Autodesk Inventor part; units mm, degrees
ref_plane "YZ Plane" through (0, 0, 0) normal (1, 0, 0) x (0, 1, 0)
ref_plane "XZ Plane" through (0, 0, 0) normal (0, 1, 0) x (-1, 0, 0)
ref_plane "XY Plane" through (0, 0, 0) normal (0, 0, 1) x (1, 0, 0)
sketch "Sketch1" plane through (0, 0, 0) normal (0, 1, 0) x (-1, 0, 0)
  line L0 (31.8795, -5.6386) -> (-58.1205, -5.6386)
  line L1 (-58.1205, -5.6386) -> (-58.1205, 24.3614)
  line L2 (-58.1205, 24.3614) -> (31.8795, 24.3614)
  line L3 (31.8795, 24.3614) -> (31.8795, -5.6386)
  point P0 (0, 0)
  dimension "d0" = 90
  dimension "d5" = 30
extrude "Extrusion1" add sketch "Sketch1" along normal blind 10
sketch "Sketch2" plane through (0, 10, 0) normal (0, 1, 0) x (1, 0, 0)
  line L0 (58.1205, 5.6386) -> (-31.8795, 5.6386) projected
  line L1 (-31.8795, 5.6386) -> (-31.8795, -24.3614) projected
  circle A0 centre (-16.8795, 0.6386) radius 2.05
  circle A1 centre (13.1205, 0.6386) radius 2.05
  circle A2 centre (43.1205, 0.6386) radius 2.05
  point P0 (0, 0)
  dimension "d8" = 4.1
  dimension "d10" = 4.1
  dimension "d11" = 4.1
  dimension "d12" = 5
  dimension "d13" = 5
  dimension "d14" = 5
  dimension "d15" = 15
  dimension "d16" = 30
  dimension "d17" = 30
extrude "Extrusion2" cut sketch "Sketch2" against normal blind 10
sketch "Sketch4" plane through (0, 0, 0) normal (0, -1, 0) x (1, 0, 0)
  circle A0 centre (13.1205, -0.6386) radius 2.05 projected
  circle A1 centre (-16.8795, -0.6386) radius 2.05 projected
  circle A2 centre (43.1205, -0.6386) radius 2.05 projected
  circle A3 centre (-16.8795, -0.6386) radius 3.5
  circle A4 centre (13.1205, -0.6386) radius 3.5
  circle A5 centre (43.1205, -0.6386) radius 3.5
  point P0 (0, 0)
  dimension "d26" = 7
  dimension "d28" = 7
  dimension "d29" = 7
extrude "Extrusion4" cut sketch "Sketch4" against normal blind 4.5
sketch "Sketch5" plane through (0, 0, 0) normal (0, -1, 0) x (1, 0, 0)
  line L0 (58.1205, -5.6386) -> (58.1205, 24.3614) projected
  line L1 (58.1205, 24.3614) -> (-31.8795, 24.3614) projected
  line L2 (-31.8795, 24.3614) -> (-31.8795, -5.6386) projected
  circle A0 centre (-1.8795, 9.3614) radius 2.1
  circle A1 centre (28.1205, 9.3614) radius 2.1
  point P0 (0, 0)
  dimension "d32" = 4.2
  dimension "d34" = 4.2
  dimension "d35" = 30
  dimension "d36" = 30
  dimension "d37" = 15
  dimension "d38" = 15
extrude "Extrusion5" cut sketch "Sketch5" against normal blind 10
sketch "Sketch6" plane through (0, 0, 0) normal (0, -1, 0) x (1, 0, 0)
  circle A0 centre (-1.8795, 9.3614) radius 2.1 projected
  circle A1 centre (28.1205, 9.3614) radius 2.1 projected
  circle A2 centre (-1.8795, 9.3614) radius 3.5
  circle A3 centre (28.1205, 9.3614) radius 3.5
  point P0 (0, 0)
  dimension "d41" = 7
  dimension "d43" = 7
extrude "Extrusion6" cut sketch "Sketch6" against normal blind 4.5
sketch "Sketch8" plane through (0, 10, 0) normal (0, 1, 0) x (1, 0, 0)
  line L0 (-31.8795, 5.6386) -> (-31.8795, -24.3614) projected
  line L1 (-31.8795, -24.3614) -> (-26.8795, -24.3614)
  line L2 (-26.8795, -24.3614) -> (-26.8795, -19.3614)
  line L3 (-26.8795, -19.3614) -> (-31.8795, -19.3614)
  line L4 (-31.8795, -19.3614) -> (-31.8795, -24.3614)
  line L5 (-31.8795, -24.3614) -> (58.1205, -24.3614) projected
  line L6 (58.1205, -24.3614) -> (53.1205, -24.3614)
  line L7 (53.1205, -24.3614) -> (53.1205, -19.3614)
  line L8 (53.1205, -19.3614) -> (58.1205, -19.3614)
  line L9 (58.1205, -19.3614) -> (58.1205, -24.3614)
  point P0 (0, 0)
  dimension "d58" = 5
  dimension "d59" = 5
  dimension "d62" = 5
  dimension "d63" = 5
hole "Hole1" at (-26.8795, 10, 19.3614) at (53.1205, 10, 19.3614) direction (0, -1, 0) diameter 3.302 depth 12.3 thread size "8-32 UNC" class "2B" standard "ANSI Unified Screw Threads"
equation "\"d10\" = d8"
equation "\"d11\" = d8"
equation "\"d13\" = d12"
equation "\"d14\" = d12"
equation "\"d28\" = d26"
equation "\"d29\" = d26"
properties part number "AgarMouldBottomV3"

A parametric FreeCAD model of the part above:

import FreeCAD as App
import Part
import Sketcher
Q = App.Units.Quantity


def add_polygon(sketch, points):
    """Adds a closed chain of lines whose ends are joined by coincident constraints."""
    first, n = sketch.GeometryCount, len(points)
    for a, b in zip(points, points[1:] + points[:1]):
        sketch.addGeometry(Part.LineSegment(App.Vector(*a, 0), App.Vector(*b, 0)), False)
    for i in range(n):
        sketch.addConstraint(Sketcher.Constraint("Coincident", first + i, 2, first + (i + 1) % n, 1))

doc = App.newDocument("Part")
body = doc.addObject("PartDesign::Body", "Body")

# Sketch on XZ plane
sketch1 = body.newObject("Sketcher::SketchObject", "Sketch")
sketch1.AttachmentSupport = (doc.getObject("XZ_Plane"), [""])
sketch1.MapMode = "FlatFace"
add_polygon(sketch1, [(58, -6), (-32, -6), (-32, 24), (58, 24)])  # lines 0-3
sketch1.addConstraint(Sketcher.Constraint("Horizontal", 0))
sketch1.addConstraint(Sketcher.Constraint("Vertical", 1))
sketch1.addConstraint(Sketcher.Constraint("Horizontal", 2))
sketch1.addConstraint(Sketcher.Constraint("Vertical", 3))
sketch1.addConstraint(Sketcher.Constraint("DistanceX", 0, 2, 0, 1, Q("90 mm")))
sketch1.addConstraint(Sketcher.Constraint("DistanceY", 1, 1, 1, 2, Q("30 mm")))
sketch1.addConstraint(Sketcher.Constraint("DistanceX", 0, 2, -1, 1, Q("31.8795 mm")))
sketch1.addConstraint(Sketcher.Constraint("DistanceY", 0, 2, -1, 1, Q("5.6386 mm")))
pad1 = body.newObject("PartDesign::Pad", "Pad")
pad1.Profile = sketch1
pad1.Length = 10
pad1.Reversed = True

# Sketch on XZ plane
sketch2 = body.newObject("Sketcher::SketchObject", "Sketch001")
sketch2.AttachmentSupport = (doc.getObject("XZ_Plane"), [""])
sketch2.MapMode = "FlatFace"
sketch2.AttachmentOffset = App.Placement(App.Vector(0, 0, -10), App.Rotation())
sketch2.addGeometry(Part.Circle(App.Vector(-16.9, -0.6, 0), App.Vector(0, 0, 1), 2), False)
sketch2.addGeometry(Part.Circle(App.Vector(13.1, -0.6, 0), App.Vector(0, 0, 1), 2), False)
sketch2.addGeometry(Part.Circle(App.Vector(43.1, -0.6, 0), App.Vector(0, 0, 1), 2), False)
sketch2.addConstraint(Sketcher.Constraint("Equal", 0, 1))
sketch2.addConstraint(Sketcher.Constraint("Equal", 1, 2))
sketch2.addConstraint(Sketcher.Constraint("Horizontal", 0, 3, 1, 3))
sketch2.addConstraint(Sketcher.Constraint("Horizontal", 1, 3, 2, 3))
sketch2.addConstraint(Sketcher.Constraint("Diameter", 0, Q("4.1 mm")))
sketch2.addConstraint(Sketcher.Constraint("DistanceX", 0, 3, 1, 3, Q("30 mm")))
sketch2.addConstraint(Sketcher.Constraint("DistanceX", 1, 3, 2, 3, Q("30 mm")))
sketch2.addConstraint(Sketcher.Constraint("DistanceX", 0, 3, -1, 1, Q("16.8795 mm")))
sketch2.addConstraint(Sketcher.Constraint("DistanceY", 0, 3, -1, 1, Q("0.6386 mm")))
pocket1 = body.newObject("PartDesign::Pocket", "Pocket")
pocket1.Profile = sketch2
pocket1.Length = 10
pocket1.Reversed = True

# Sketch on XZ plane
sketch3 = body.newObject("Sketcher::SketchObject", "Sketch002")
sketch3.AttachmentSupport = (doc.getObject("XZ_Plane"), [""])
sketch3.MapMode = "FlatFace"
sketch3.addGeometry(Part.Circle(App.Vector(-16.9, -0.6, 0), App.Vector(0, 0, 1), 3.5), False)
sketch3.addGeometry(Part.Circle(App.Vector(-16.9, -0.6, 0), App.Vector(0, 0, 1), 2), False)
sketch3.addGeometry(Part.Circle(App.Vector(13.1, -0.6, 0), App.Vector(0, 0, 1), 3.5), False)
sketch3.addGeometry(Part.Circle(App.Vector(13.1, -0.6, 0), App.Vector(0, 0, 1), 2), False)
sketch3.addGeometry(Part.Circle(App.Vector(43.1, -0.6, 0), App.Vector(0, 0, 1), 3.5), False)
sketch3.addGeometry(Part.Circle(App.Vector(43.1, -0.6, 0), App.Vector(0, 0, 1), 2), False)
sketch3.addConstraint(Sketcher.Constraint("Coincident", 1, 3, 0, 3))
sketch3.addConstraint(Sketcher.Constraint("Coincident", 3, 3, 2, 3))
sketch3.addConstraint(Sketcher.Constraint("Coincident", 5, 3, 4, 3))
sketch3.addConstraint(Sketcher.Constraint("Equal", 0, 2))
sketch3.addConstraint(Sketcher.Constraint("Equal", 1, 3))
sketch3.addConstraint(Sketcher.Constraint("Equal", 2, 4))
sketch3.addConstraint(Sketcher.Constraint("Equal", 3, 5))
sketch3.addConstraint(Sketcher.Constraint("Horizontal", 1, 3, 2, 3))
sketch3.addConstraint(Sketcher.Constraint("Horizontal", 3, 3, 4, 3))
sketch3.addConstraint(Sketcher.Constraint("Diameter", 0, Q("7 mm")))
sketch3.addConstraint(Sketcher.Constraint("Diameter", 1, Q("4.1 mm")))
sketch3.addConstraint(Sketcher.Constraint("DistanceX", 0, 3, 2, 3, Q("30 mm")))
sketch3.addConstraint(Sketcher.Constraint("DistanceX", 2, 3, 4, 3, Q("30 mm")))
sketch3.addConstraint(Sketcher.Constraint("DistanceX", 0, 3, -1, 1, Q("16.8795 mm")))
sketch3.addConstraint(Sketcher.Constraint("DistanceY", 0, 3, -1, 1, Q("0.6386 mm")))
pocket2 = body.newObject("PartDesign::Pocket", "Pocket001")
pocket2.Profile = sketch3
pocket2.Length = 4.5

# Sketch on XZ plane
sketch4 = body.newObject("Sketcher::SketchObject", "Sketch003")
sketch4.AttachmentSupport = (doc.getObject("XZ_Plane"), [""])
sketch4.MapMode = "FlatFace"
sketch4.addGeometry(Part.Circle(App.Vector(-1.9, 9.4, 0), App.Vector(0, 0, 1), 2.1), False)
sketch4.addGeometry(Part.Circle(App.Vector(28.1, 9.4, 0), App.Vector(0, 0, 1), 2.1), False)
sketch4.addConstraint(Sketcher.Constraint("Equal", 0, 1))
sketch4.addConstraint(Sketcher.Constraint("Horizontal", 0, 3, 1, 3))
sketch4.addConstraint(Sketcher.Constraint("Diameter", 0, Q("4.2 mm")))
sketch4.addConstraint(Sketcher.Constraint("DistanceX", 0, 3, 1, 3, Q("30 mm")))
sketch4.addConstraint(Sketcher.Constraint("DistanceX", 0, 3, -1, 1, Q("1.8795 mm")))
sketch4.addConstraint(Sketcher.Constraint("DistanceY", -1, 1, 0, 3, Q("9.3614 mm")))
pocket3 = body.newObject("PartDesign::Pocket", "Pocket002")
pocket3.Profile = sketch4
pocket3.Length = 10

# Sketch on XZ plane
sketch5 = body.newObject("Sketcher::SketchObject", "Sketch004")
sketch5.AttachmentSupport = (doc.getObject("XZ_Plane"), [""])
sketch5.MapMode = "FlatFace"
sketch5.addGeometry(Part.Circle(App.Vector(-1.9, 9.4, 0), App.Vector(0, 0, 1), 3.5), False)
sketch5.addGeometry(Part.Circle(App.Vector(-1.9, 9.4, 0), App.Vector(0, 0, 1), 2.1), False)
sketch5.addGeometry(Part.Circle(App.Vector(28.1, 9.4, 0), App.Vector(0, 0, 1), 3.5), False)
sketch5.addGeometry(Part.Circle(App.Vector(28.1, 9.4, 0), App.Vector(0, 0, 1), 2.1), False)
sketch5.addConstraint(Sketcher.Constraint("Coincident", 1, 3, 0, 3))
sketch5.addConstraint(Sketcher.Constraint("Coincident", 3, 3, 2, 3))
sketch5.addConstraint(Sketcher.Constraint("Equal", 0, 2))
sketch5.addConstraint(Sketcher.Constraint("Equal", 1, 3))
sketch5.addConstraint(Sketcher.Constraint("Horizontal", 1, 3, 2, 3))
sketch5.addConstraint(Sketcher.Constraint("Diameter", 0, Q("7 mm")))
sketch5.addConstraint(Sketcher.Constraint("Diameter", 1, Q("4.2 mm")))
sketch5.addConstraint(Sketcher.Constraint("DistanceX", 0, 3, 2, 3, Q("30 mm")))
sketch5.addConstraint(Sketcher.Constraint("DistanceX", 0, 3, -1, 1, Q("1.8795 mm")))
sketch5.addConstraint(Sketcher.Constraint("DistanceY", -1, 1, 0, 3, Q("9.3614 mm")))
pocket4 = body.newObject("PartDesign::Pocket", "Pocket003")
pocket4.Profile = sketch5
pocket4.Length = 4.5

# Sketch on XZ plane
sketch6 = body.newObject("Sketcher::SketchObject", "Sketch005")
sketch6.AttachmentSupport = (doc.getObject("XZ_Plane"), [""])
sketch6.MapMode = "FlatFace"
sketch6.AttachmentOffset = App.Placement(App.Vector(0, 0, -10), App.Rotation())
sketch6.addGeometry(Part.Circle(App.Vector(-26.9, 19.4, 0), App.Vector(0, 0, 1), 1.7), False)
sketch6.addGeometry(Part.Circle(App.Vector(53.1, 19.4, 0), App.Vector(0, 0, 1), 1.7), False)
sketch6.addConstraint(Sketcher.Constraint("Equal", 0, 1))
sketch6.addConstraint(Sketcher.Constraint("Horizontal", 0, 3, 1, 3))
sketch6.addConstraint(Sketcher.Constraint("Diameter", 0, Q("3.302 mm")))
sketch6.addConstraint(Sketcher.Constraint("DistanceX", 0, 3, 1, 3, Q("80 mm")))
sketch6.addConstraint(Sketcher.Constraint("DistanceX", 0, 3, -1, 1, Q("26.8795 mm")))
sketch6.addConstraint(Sketcher.Constraint("DistanceY", -1, 1, 0, 3, Q("19.3614 mm")))
doc.recompute()
hole = body.newObject("PartDesign::Hole", "Hole")
hole.Profile = sketch6
hole.ThreadType = "None"
hole.Diameter = 3.302
hole.DepthType = "Dimension"
hole.Depth = 12.3
hole.DrillPoint = "Flat"
hole.Reversed = True

doc.recompute()
